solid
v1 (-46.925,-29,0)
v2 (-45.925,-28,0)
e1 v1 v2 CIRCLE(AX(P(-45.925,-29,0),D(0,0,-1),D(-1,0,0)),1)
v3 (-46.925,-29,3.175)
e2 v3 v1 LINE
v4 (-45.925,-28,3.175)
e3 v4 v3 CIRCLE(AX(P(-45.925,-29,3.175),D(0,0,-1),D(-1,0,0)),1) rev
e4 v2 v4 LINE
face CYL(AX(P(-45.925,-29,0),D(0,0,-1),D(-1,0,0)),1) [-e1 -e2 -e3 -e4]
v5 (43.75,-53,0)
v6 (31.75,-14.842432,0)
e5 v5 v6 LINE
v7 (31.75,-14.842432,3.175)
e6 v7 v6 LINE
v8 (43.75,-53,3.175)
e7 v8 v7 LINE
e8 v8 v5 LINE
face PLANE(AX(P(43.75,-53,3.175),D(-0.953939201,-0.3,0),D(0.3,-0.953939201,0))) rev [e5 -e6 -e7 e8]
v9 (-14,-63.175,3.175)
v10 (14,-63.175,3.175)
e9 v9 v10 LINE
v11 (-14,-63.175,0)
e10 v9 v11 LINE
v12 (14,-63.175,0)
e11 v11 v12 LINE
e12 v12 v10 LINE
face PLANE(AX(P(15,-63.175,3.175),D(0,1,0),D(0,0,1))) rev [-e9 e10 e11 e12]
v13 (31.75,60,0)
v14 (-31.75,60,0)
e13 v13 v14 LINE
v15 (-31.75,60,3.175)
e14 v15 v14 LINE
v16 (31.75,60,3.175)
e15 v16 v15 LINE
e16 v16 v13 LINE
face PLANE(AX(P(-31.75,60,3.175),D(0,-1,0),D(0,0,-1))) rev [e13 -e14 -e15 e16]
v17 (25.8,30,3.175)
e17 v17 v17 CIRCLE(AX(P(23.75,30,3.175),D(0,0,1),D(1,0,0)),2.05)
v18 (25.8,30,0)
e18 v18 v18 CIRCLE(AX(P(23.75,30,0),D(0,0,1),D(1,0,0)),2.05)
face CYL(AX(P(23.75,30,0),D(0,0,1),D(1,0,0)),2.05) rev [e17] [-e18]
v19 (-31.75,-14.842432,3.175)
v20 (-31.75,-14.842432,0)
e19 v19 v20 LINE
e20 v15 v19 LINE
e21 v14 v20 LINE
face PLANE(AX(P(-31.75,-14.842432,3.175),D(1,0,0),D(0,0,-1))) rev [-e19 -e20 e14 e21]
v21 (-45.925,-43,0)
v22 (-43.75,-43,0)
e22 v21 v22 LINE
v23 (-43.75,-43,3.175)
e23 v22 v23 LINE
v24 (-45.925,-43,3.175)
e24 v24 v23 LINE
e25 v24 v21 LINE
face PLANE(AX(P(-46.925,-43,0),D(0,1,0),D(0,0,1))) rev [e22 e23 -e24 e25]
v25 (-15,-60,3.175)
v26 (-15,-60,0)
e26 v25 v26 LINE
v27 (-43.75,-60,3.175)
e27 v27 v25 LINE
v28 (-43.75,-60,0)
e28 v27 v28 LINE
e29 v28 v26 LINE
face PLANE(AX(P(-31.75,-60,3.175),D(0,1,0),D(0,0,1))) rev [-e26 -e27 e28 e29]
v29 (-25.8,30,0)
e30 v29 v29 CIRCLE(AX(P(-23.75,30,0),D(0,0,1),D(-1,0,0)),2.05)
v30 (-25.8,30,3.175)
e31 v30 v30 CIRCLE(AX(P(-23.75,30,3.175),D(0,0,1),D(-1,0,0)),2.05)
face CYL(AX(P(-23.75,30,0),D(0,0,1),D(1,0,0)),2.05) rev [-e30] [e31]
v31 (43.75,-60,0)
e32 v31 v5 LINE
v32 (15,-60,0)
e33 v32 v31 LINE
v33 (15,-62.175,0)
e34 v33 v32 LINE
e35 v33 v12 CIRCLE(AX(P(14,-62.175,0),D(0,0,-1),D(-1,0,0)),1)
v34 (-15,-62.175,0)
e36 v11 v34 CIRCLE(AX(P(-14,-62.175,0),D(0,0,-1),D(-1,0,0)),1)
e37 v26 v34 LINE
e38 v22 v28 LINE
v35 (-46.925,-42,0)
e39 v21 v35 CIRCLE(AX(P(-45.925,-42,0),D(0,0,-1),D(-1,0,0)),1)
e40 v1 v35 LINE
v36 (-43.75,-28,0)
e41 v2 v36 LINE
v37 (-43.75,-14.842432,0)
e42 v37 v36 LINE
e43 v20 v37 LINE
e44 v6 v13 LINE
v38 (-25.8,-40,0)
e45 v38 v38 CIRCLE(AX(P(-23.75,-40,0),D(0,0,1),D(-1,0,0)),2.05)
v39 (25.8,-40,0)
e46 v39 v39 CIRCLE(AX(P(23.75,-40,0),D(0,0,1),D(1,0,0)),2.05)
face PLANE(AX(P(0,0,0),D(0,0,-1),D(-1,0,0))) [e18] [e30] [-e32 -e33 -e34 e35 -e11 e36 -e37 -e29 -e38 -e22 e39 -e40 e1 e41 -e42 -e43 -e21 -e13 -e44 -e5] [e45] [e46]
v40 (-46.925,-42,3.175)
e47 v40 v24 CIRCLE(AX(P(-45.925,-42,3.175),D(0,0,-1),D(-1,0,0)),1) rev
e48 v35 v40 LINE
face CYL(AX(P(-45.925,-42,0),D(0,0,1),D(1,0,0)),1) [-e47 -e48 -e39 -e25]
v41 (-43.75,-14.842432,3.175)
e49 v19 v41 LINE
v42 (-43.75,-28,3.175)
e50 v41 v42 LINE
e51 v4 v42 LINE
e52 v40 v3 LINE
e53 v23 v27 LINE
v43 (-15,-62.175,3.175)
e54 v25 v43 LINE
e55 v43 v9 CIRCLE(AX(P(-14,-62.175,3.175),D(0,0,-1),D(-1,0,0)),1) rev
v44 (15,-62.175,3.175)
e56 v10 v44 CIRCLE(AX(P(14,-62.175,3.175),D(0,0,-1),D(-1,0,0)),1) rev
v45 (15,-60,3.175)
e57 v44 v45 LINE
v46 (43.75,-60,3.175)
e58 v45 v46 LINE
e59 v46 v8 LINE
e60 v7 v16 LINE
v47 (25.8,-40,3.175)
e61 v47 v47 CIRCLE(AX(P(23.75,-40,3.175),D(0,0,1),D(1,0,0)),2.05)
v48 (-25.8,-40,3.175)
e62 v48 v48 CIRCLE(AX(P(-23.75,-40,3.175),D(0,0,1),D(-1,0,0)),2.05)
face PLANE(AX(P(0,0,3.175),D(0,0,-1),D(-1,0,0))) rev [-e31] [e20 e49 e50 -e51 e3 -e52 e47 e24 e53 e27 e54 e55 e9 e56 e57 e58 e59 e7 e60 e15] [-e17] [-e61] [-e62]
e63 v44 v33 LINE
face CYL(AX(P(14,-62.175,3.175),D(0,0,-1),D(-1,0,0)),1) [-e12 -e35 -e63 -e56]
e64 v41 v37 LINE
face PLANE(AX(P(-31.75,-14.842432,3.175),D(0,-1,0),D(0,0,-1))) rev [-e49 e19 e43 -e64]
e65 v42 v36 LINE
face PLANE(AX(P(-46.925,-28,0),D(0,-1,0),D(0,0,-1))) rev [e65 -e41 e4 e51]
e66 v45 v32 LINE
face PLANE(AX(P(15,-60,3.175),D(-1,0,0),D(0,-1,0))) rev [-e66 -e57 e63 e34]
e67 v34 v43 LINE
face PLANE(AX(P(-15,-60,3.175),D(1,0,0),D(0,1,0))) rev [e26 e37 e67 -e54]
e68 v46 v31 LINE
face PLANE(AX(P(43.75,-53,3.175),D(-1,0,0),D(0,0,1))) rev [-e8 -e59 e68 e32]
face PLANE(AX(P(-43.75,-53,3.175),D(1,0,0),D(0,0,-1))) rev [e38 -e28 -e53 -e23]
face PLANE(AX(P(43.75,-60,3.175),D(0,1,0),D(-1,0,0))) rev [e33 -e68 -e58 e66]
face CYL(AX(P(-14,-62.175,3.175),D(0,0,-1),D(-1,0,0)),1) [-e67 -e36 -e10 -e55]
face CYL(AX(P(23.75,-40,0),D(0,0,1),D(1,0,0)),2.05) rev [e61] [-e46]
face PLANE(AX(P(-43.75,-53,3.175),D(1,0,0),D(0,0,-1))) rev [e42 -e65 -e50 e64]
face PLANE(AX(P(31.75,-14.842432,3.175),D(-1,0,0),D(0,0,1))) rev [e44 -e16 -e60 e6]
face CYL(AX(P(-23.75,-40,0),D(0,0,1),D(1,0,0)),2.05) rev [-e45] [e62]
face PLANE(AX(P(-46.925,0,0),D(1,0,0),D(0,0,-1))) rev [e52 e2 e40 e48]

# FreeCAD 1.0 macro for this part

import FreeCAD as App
import Part
import Sketcher
from FreeCAD import Vector


def edges_at(feature, points):
    """Names of the edges that pass closest to the given points."""
    edges = feature.Shape.Edges
    near = lambda p: min(range(len(edges)), key=lambda i: edges[i].distToShape(Part.Vertex(*p))[0])
    return sorted({f"Edge{near(p) + 1}" for p in points})

doc = App.newDocument("Part")
body = doc.addObject("PartDesign::Body", "Body")

# Sketch on XY plane
sketch1 = body.newObject("Sketcher::SketchObject", "Sketch")
sketch1.AttachmentSupport = (doc.getObject("XY_Plane"), [""])
sketch1.MapMode = "FlatFace"
sketch1.addGeometry([
    Part.LineSegment(Vector(-15, -60, 0), Vector(-15, -63.175, 0)),  # 0
    Part.LineSegment(Vector(-15, -63.175, 0), Vector(15, -63.175, 0)),  # 1
    Part.LineSegment(Vector(15, -63.175, 0), Vector(15, -60, 0)),  # 2
    Part.LineSegment(Vector(15, -60, 0), Vector(43.75, -60, 0)),  # 3
    Part.LineSegment(Vector(43.75, -60, 0), Vector(43.75, -53, 0)),  # 4
    Part.LineSegment(Vector(43.75, -53, 0), Vector(31.75, -14.842432, 0)),  # 5
    Part.LineSegment(Vector(31.75, -14.842432, 0), Vector(31.75, 60, 0)),  # 6
    Part.LineSegment(Vector(31.75, 60, 0), Vector(-31.75, 60, 0)),  # 7
    Part.LineSegment(Vector(-31.75, 60, 0), Vector(-31.75, -14.842432, 0)),  # 8
    Part.LineSegment(Vector(-31.75, -14.842432, 0), Vector(-43.75, -14.842432, 0)),  # 9
    Part.LineSegment(Vector(-43.75, -14.842432, 0), Vector(-43.75, -60, 0)),  # 10
    Part.LineSegment(Vector(-43.75, -60, 0), Vector(-15, -60, 0)),  # 11
], False)
sketch1.addConstraint([
    Sketcher.Constraint("Coincident", 0, 2, 1, 1),
    Sketcher.Constraint("Coincident", 1, 2, 2, 1),
    Sketcher.Constraint("Coincident", 2, 2, 3, 1),
    Sketcher.Constraint("Coincident", 3, 2, 4, 1),
    Sketcher.Constraint("Coincident", 4, 2, 5, 1),
    Sketcher.Constraint("Coincident", 5, 2, 6, 1),
    Sketcher.Constraint("Coincident", 6, 2, 7, 1),
    Sketcher.Constraint("Coincident", 7, 2, 8, 1),
    Sketcher.Constraint("Coincident", 8, 2, 9, 1),
    Sketcher.Constraint("Coincident", 9, 2, 10, 1),
    Sketcher.Constraint("Coincident", 10, 2, 11, 1),
    Sketcher.Constraint("Coincident", 11, 2, 0, 1),
    Sketcher.Constraint("Vertical", 0),
    Sketcher.Constraint("Horizontal", 1),
    Sketcher.Constraint("Vertical", 2),
    Sketcher.Constraint("Horizontal", 3),
    Sketcher.Constraint("Vertical", 4),
    Sketcher.Constraint("Vertical", 6),
    Sketcher.Constraint("Horizontal", 7),
    Sketcher.Constraint("Vertical", 8),
    Sketcher.Constraint("Horizontal", 9),
    Sketcher.Constraint("Vertical", 10),
    Sketcher.Constraint("Horizontal", 11),
    Sketcher.Constraint("Symmetric", 5, 2, 8, 2, -2),
    Sketcher.Constraint("Symmetric", 3, 2, 10, 2, -2),
    Sketcher.Constraint("Equal", 3, 11),
    Sketcher.Constraint("DistanceX", 1, 1, 1, 2, 30.0),
    Sketcher.Constraint("DistanceX", 9, 2, 9, 1, 12.0),
    Sketcher.Constraint("DistanceY", 4, 1, 4, 2, 7.0),
    Sketcher.Constraint("Distance", 5, 40.0),
    Sketcher.Constraint("DistanceX", 7, 2, 7, 1, 63.5),
    Sketcher.Constraint("DistanceY", 2, 2, -1, 1, 60.0),
    Sketcher.Constraint("DistanceY", -1, 1, 6, 2, 60.0),
    Sketcher.Constraint("DistanceY", 0, 2, 0, 1, 3.175),
])
pad1 = body.newObject("PartDesign::Pad", "Pad")
pad1.Profile = sketch1
pad1.Length = 3.175

# Sketch on XY plane
sketch2 = body.newObject("Sketcher::SketchObject", "Sketch001")
sketch2.AttachmentSupport = (doc.getObject("XY_Plane"), [""])
sketch2.MapMode = "FlatFace"
sketch2.AttachmentOffset = App.Placement(Vector(0, 0, 3.175), App.Rotation())
sketch2.addGeometry([
    Part.Circle(Vector(23.75, 30, 0), Vector(0, 0, 1), 2.05),
    Part.Circle(Vector(23.75, -40, 0), Vector(0, 0, 1), 2.05),
    Part.Circle(Vector(-23.75, -40, 0), Vector(0, 0, 1), 2.05),
    Part.Circle(Vector(-23.75, 30, 0), Vector(0, 0, 1), 2.05),
], False)
sketch2.addConstraint([
    Sketcher.Constraint("Equal", 0, 1),
    Sketcher.Constraint("Equal", 1, 2),
    Sketcher.Constraint("Equal", 2, 3),
    Sketcher.Constraint("Symmetric", 1, 3, 2, 3, -2),
    Sketcher.Constraint("Symmetric", 0, 3, 3, 3, -2),
    Sketcher.Constraint("Vertical", 0, 3, 1, 3),
    Sketcher.Constraint("Diameter", 0, 4.1),
    Sketcher.Constraint("DistanceY", -1, 1, 0, 3, 30.0),
    Sketcher.Constraint("DistanceY", 1, 3, -1, 1, 40.0),
    Sketcher.Constraint("DistanceX", 2, 3, 1, 3, 47.5),
])
pocket1 = body.newObject("PartDesign::Pocket", "Pocket")
pocket1.Profile = sketch2
pocket1.Type = "ThroughAll"

# Sketch on YZ plane
sketch3 = body.newObject("Sketcher::SketchObject", "Sketch002")
sketch3.AttachmentSupport = (doc.getObject("YZ_Plane"), [""])
sketch3.MapMode = "FlatFace"
sketch3.AttachmentOffset = App.Placement(Vector(0, 0, -43.75), App.Rotation())
sketch3.addGeometry([
    Part.LineSegment(Vector(-28, 0, 0), Vector(-43, 0, 0)),
    Part.LineSegment(Vector(-43, 0, 0), Vector(-43, 3.175, 0)),
    Part.LineSegment(Vector(-43, 3.175, 0), Vector(-28, 3.175, 0)),
    Part.LineSegment(Vector(-28, 3.175, 0), Vector(-28, 0, 0)),
], False)
sketch3.addConstraint([
    Sketcher.Constraint("Coincident", 0, 2, 1, 1),
    Sketcher.Constraint("Coincident", 1, 2, 2, 1),
    Sketcher.Constraint("Coincident", 2, 2, 3, 1),
    Sketcher.Constraint("Coincident", 3, 2, 0, 1),
    Sketcher.Constraint("Horizontal", 0),
    Sketcher.Constraint("Vertical", 1),
    Sketcher.Constraint("Horizontal", 2),
    Sketcher.Constraint("Vertical", 3),
    Sketcher.Constraint("PointOnObject", 0, 2, -1),
    Sketcher.Constraint("DistanceX", 0, 2, 0, 1, 15.0),
    Sketcher.Constraint("DistanceX", 0, 2, -1, 1, 43.0),
    Sketcher.Constraint("DistanceY", 1, 1, 1, 2, 3.175),
])
pad2 = body.newObject("PartDesign::Pad", "Pad001")
pad2.Profile = sketch3
pad2.Length = 3.175
pad2.Reversed = True
doc.recompute()

fillet = body.newObject("PartDesign::Fillet", "Fillet")
fillet.Base = (pad2, edges_at(pad2, [
    (15, -63.175, 1.587),
    (-15, -63.175, 1.587),
    (-46.925, -43, 1.587),
    (-46.925, -28, 1.587),
]))
fillet.Radius = 1

doc.recompute()
